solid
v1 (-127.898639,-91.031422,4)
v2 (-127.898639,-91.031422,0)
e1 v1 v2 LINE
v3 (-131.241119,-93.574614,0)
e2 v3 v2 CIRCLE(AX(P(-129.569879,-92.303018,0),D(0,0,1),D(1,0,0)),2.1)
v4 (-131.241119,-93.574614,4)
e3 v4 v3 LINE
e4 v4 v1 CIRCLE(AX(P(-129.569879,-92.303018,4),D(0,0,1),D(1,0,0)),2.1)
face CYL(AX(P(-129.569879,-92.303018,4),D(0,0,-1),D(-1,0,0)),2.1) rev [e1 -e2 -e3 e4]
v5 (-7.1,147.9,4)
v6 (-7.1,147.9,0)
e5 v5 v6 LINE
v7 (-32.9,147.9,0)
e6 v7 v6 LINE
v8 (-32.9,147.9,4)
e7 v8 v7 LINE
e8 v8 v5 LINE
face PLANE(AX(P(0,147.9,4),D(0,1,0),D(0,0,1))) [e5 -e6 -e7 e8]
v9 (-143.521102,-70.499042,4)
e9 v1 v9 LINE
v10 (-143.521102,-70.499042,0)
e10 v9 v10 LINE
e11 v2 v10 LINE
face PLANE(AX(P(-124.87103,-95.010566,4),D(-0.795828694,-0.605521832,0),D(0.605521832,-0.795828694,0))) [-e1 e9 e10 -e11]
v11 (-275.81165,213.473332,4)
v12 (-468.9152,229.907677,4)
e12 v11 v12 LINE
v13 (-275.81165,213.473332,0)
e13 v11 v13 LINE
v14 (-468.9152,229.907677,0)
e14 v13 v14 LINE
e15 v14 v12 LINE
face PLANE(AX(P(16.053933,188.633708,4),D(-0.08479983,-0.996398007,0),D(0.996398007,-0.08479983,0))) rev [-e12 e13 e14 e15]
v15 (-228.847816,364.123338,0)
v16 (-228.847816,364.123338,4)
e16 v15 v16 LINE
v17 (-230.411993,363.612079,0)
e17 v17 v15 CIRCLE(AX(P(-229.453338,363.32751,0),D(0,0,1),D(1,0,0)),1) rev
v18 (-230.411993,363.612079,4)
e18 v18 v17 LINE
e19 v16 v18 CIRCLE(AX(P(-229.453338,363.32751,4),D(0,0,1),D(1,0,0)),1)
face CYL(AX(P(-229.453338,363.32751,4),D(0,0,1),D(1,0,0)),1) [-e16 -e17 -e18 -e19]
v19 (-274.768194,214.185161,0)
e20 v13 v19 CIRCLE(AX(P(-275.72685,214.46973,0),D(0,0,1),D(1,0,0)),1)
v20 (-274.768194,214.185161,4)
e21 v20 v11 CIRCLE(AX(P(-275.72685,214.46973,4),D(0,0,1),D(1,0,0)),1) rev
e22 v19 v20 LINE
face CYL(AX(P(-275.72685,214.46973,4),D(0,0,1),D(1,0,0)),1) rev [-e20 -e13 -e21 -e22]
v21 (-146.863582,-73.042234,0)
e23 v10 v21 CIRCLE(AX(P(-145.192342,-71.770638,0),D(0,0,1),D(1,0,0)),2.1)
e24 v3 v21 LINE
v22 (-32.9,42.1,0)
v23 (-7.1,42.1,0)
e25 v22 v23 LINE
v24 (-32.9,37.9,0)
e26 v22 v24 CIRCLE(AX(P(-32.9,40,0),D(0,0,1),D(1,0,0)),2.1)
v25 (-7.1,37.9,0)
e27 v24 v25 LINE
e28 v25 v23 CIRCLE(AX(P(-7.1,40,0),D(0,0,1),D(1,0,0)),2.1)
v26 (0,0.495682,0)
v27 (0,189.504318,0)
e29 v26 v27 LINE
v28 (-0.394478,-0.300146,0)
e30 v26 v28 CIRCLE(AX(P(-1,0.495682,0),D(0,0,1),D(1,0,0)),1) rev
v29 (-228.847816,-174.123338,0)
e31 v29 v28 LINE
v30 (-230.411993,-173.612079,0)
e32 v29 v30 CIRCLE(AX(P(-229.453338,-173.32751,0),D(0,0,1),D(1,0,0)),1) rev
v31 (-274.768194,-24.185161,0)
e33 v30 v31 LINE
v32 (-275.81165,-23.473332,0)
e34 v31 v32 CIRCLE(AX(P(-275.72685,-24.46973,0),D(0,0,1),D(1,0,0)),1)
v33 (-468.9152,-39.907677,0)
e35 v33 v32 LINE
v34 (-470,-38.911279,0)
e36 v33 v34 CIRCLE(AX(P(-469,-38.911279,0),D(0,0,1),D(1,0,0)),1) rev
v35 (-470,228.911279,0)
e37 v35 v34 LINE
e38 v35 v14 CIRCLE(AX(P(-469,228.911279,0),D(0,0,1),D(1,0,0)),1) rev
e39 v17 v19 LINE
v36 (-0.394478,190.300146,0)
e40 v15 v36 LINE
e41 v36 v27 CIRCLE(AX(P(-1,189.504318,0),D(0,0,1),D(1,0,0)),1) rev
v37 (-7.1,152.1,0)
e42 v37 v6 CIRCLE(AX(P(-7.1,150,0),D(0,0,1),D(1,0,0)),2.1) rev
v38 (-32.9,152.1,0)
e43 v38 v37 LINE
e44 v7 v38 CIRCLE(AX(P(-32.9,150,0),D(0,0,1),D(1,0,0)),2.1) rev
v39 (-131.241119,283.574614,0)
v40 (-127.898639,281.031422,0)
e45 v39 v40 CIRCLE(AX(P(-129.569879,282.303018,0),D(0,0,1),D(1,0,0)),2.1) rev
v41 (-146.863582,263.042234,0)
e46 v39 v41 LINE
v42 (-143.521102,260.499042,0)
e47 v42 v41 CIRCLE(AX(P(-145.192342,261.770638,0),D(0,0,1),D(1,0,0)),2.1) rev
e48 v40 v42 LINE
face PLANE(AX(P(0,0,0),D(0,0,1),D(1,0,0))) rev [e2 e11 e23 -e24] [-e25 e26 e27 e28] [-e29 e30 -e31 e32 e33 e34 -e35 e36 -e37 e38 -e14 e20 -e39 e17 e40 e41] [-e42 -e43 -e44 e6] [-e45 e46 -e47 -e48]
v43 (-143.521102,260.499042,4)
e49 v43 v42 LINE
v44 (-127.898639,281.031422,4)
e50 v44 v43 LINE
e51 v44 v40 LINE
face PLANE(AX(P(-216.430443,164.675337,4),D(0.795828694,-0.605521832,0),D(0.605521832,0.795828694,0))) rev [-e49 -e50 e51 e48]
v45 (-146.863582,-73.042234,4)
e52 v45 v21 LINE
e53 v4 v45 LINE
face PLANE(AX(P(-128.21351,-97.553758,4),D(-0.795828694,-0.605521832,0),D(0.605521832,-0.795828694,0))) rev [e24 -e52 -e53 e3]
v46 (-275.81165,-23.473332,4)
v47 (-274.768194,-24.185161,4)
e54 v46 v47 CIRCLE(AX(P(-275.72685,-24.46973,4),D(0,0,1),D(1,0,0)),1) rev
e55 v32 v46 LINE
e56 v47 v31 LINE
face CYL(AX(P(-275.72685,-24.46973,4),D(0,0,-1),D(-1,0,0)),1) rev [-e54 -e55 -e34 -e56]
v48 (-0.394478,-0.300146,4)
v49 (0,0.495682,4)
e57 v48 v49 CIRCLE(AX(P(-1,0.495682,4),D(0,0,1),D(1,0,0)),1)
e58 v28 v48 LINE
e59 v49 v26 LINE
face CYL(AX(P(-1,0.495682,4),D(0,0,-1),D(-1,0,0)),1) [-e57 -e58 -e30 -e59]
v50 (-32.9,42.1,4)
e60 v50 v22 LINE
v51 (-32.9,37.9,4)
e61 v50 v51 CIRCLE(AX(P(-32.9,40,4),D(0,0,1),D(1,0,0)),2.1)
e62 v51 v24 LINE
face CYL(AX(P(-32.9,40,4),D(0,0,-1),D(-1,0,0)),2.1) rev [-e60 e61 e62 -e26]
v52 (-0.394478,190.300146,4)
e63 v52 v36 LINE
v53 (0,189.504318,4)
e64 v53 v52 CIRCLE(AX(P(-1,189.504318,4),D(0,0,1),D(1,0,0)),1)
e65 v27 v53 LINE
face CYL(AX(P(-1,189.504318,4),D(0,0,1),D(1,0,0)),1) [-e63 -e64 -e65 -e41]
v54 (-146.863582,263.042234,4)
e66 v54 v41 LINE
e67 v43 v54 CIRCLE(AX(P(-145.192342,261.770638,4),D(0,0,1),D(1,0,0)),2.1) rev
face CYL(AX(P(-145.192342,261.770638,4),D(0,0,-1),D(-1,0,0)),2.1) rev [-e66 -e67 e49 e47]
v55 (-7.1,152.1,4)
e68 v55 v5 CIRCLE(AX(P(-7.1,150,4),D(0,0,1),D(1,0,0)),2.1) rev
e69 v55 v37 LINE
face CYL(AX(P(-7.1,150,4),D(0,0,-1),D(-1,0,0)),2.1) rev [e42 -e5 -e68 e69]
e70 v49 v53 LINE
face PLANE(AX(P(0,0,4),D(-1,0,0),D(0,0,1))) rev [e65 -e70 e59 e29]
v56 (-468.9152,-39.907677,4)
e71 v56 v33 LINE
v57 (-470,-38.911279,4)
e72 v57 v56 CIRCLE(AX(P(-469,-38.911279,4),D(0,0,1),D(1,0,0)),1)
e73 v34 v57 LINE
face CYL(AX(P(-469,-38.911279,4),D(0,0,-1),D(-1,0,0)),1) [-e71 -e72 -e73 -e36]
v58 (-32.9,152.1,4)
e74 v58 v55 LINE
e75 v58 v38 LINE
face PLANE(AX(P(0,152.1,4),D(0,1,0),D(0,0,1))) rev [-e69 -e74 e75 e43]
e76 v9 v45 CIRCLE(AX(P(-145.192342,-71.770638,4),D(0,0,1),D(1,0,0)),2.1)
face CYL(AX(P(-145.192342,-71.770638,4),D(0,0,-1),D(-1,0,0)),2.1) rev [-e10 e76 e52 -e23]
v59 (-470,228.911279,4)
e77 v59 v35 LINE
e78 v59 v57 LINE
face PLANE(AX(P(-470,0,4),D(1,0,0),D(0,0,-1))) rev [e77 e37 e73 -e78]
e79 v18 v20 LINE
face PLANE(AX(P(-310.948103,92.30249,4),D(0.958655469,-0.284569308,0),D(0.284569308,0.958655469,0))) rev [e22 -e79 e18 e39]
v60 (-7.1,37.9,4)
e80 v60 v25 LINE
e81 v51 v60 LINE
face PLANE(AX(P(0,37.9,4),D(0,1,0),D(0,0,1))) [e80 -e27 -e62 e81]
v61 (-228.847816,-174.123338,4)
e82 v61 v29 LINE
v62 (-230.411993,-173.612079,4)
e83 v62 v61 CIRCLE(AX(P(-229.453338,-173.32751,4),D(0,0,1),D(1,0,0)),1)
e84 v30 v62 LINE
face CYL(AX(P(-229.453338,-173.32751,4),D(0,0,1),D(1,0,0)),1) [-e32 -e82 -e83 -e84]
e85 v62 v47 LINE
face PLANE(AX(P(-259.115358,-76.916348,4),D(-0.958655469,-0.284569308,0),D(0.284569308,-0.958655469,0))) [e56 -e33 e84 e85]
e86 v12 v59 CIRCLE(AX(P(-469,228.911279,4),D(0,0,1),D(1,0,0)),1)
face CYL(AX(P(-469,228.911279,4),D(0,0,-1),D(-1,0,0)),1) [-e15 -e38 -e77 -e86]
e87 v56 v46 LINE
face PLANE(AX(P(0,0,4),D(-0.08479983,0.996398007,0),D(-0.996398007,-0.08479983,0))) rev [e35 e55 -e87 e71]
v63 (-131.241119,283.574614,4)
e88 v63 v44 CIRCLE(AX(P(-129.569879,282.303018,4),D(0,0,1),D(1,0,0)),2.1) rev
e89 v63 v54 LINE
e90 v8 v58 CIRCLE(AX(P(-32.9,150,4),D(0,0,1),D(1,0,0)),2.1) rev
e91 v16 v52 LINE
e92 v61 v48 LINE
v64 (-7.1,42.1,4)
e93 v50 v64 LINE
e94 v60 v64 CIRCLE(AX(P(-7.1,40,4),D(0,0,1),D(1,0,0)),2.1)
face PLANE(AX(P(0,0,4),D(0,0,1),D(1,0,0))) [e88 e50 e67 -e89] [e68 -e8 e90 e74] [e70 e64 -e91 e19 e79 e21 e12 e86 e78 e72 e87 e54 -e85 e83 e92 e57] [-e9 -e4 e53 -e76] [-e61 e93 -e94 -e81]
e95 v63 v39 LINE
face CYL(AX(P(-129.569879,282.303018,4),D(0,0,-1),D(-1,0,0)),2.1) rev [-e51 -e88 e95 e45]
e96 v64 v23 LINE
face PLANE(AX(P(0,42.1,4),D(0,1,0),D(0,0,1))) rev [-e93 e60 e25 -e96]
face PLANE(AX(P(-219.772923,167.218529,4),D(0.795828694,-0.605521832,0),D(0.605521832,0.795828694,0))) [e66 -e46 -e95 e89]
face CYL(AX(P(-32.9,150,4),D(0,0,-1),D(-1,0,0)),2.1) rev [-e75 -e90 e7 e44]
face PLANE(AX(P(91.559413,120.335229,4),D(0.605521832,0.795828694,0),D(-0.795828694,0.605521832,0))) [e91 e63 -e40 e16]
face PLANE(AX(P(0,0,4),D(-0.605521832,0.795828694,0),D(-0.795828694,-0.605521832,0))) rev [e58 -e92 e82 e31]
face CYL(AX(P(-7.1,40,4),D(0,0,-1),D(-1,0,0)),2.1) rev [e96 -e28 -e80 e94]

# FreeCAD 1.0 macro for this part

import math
import FreeCAD as App
import Part
import Sketcher

V = App.Vector


def edges_at(feature, points):
    """Names of the edges that pass closest to the given points."""
    edges = feature.Shape.Edges
    near = lambda p: min(range(len(edges)), key=lambda i: edges[i].distToShape(Part.Vertex(*p))[0])
    return sorted({f"Edge{near(p) + 1}" for p in points})

doc = App.newDocument("Part")
body = doc.addObject("PartDesign::Body", "Body")

# Sketch on XY plane
sketch1 = body.newObject("Sketcher::SketchObject", "Sketch")
sketch1.AttachmentSupport = (doc.getObject("XY_Plane"), [""])
sketch1.MapMode = "FlatFace"
sketch1.addGeometry([
    Part.LineSegment(V(-470, -40, 0), V(-275, -23.4, 0)),  # 0
    Part.LineSegment(V(-275, -23.4, 0), V(-230, -175, 0)),  # 1
    Part.LineSegment(V(-230, -175, 0), V(0, 0, 0)),  # 2
    Part.LineSegment(V(0, 0, 0), V(0, 190, 0)),  # 3
    Part.LineSegment(V(0, 190, 0), V(-230, 365, 0)),  # 4
    Part.LineSegment(V(-230, 365, 0), V(-275, 213.4, 0)),  # 5
    Part.LineSegment(V(-275, 213.4, 0), V(-470, 230, 0)),  # 6
    Part.LineSegment(V(-470, 230, 0), V(-470, -40, 0)),  # 7
    Part.LineSegment(V(-7.1, 37.9, 0), V(-32.9, 37.9, 0)),  # 8
    Part.ArcOfCircle(Part.Circle(V(-32.9, 40, 0), V(0, 0, 1), 2.1), math.radians(90), math.radians(270)),  # 9
    Part.LineSegment(V(-32.9, 42.1, 0), V(-7.1, 42.1, 0)),  # 10
    Part.ArcOfCircle(Part.Circle(V(-7.1, 40, 0), V(0, 0, 1), 2.1), math.radians(-90), math.radians(90)),  # 11
    Part.ArcOfCircle(Part.Circle(V(-7.1, 150, 0), V(0, 0, 1), 2.1), math.radians(-90), math.radians(90)),  # 12
    Part.LineSegment(V(-7.1, 147.9, 0), V(-32.9, 147.9, 0)),  # 13
    Part.ArcOfCircle(Part.Circle(V(-32.9, 150, 0), V(0, 0, 1), 2.1), math.radians(90), math.radians(270)),  # 14
    Part.LineSegment(V(-32.9, 152.1, 0), V(-7.1, 152.1, 0)),  # 15
    Part.ArcOfCircle(Part.Circle(V(-129.6, -92.3, 0), V(0, 0, 1), 2.1), math.radians(-143), math.radians(37)),  # 16
    Part.LineSegment(V(-131.2, -93.6, 0), V(-146.9, -73, 0)),  # 17
    Part.ArcOfCircle(Part.Circle(V(-145.2, -71.8, 0), V(0, 0, 1), 2.1), math.radians(37), math.radians(217)),  # 18
    Part.LineSegment(V(-143.5, -70.5, 0), V(-127.9, -91, 0)),  # 19
    Part.LineSegment(V(-146.9, 263, 0), V(-131.2, 283.6, 0)),  # 20
    Part.ArcOfCircle(Part.Circle(V(-129.6, 282.3, 0), V(0, 0, 1), 2.1), math.radians(-37), math.radians(143)),  # 21
    Part.LineSegment(V(-127.9, 281, 0), V(-143.5, 260.5, 0)),  # 22
    Part.ArcOfCircle(Part.Circle(V(-145.2, 261.8, 0), V(0, 0, 1), 2.1), math.radians(143), math.radians(323)),  # 23
], False)
sketch1.addConstraint([
    Sketcher.Constraint("Coincident", 0, 2, 1, 1),
    Sketcher.Constraint("Coincident", 1, 2, 2, 1),
    Sketcher.Constraint("Coincident", 2, 2, 3, 1),
    Sketcher.Constraint("Coincident", 3, 2, 4, 1),
    Sketcher.Constraint("Coincident", 4, 2, 5, 1),
    Sketcher.Constraint("Coincident", 5, 2, 6, 1),
    Sketcher.Constraint("Coincident", 6, 2, 7, 1),
    Sketcher.Constraint("Coincident", 7, 2, 0, 1),
    Sketcher.Constraint("Tangent", 8, 2, 9, 2),
    Sketcher.Constraint("Tangent", 9, 1, 10, 1),
    Sketcher.Constraint("Tangent", 10, 2, 11, 2),
    Sketcher.Constraint("Tangent", 11, 1, 8, 1),
    Sketcher.Constraint("Tangent", 12, 1, 13, 1),
    Sketcher.Constraint("Tangent", 13, 2, 14, 2),
    Sketcher.Constraint("Tangent", 14, 1, 15, 1),
    Sketcher.Constraint("Tangent", 15, 2, 12, 2),
    Sketcher.Constraint("Tangent", 16, 1, 17, 1),
    Sketcher.Constraint("Tangent", 17, 2, 18, 2),
    Sketcher.Constraint("Tangent", 18, 1, 19, 1),
    Sketcher.Constraint("Tangent", 19, 2, 16, 2),
    Sketcher.Constraint("Tangent", 20, 2, 21, 2),
    Sketcher.Constraint("Tangent", 21, 1, 22, 1),
    Sketcher.Constraint("Tangent", 22, 2, 23, 2),
    Sketcher.Constraint("Tangent", 23, 1, 20, 1),
    Sketcher.Constraint("Vertical", 3),
    Sketcher.Constraint("Vertical", 7),
    Sketcher.Constraint("Horizontal", 8),
    Sketcher.Constraint("Horizontal", 10),
    Sketcher.Constraint("Horizontal", 13),
    Sketcher.Constraint("Horizontal", 15),
    Sketcher.Constraint("Coincident", 2, 2, -1, 1),
    Sketcher.Constraint("Equal", 11, 12),
    Sketcher.Constraint("Equal", 14, 16),
    Sketcher.Constraint("Equal", 16, 18),
    Sketcher.Constraint("Equal", 18, 21),
    Sketcher.Constraint("Equal", 21, 23),
    Sketcher.Constraint("Perpendicular", 2, 17),
    Sketcher.Constraint("Perpendicular", 4, 20),
    Sketcher.Constraint("Vertical", 11, 3, 12, 3),
    Sketcher.Constraint("Vertical", 9, 3, 14, 3),
    Sketcher.Constraint("Vertical", 16, 3, 21, 3),
    Sketcher.Constraint("Vertical", 18, 3, 23, 3),
    Sketcher.Constraint("Vertical", 1, 2, 4, 2),
    Sketcher.Constraint("Vertical", 0, 2, 5, 2),
    Sketcher.Constraint("Vertical", 16, 1, 20, 2),
    Sketcher.Constraint("Equal", 1, 5),
    Sketcher.Constraint("Equal", 0, 6),
    Sketcher.Constraint("Radius", 9, 2.1),
    Sketcher.Constraint("DistanceY", 3, 1, 3, 2, 190.0),
    Sketcher.Constraint("DistanceY", 7, 2, 7, 1, 270.0),
    Sketcher.Constraint("DistanceX", 8, 2, 8, 1, 25.8),
    Sketcher.Constraint("DistanceY", -1, 1, 9, 3, 40.0),
    Sketcher.Constraint("DistanceY", -1, 1, 12, 3, 150.0),
    Sketcher.Constraint("DistanceX", 0, 2, -1, 1, 275.0),
    Sketcher.Constraint("DistanceX", 1, 2, -1, 1, 230.0),
    Sketcher.Constraint("DistanceY", 1, 2, -1, 1, 175.0),
    Sketcher.Constraint("DistanceX", 6, 2, -1, 1, 470.0),
    Sketcher.Constraint("Distance", 17, 25.8),
    Sketcher.Constraint("DistanceX", 9, 3, -1, 1, 32.9),
    Sketcher.Constraint("DistanceX", 18, 1, -1, 1, 143.521102),
    Sketcher.Constraint("Distance", 1, 158.133709),
    Sketcher.Constraint("DistanceY", 16, 3, -1, 1, 92.303018),
    Sketcher.Constraint("DistanceY", -1, 1, 21, 3, 282.303018),
])
pad1 = body.newObject("PartDesign::Pad", "Pad")
pad1.Profile = sketch1
pad1.Length = 4
doc.recompute()

fillet = body.newObject("PartDesign::Fillet", "Fillet")
fillet.Base = (pad1, edges_at(pad1, [
    (-275, -23.404, 2),
    (-470, -40, 2),
    (-470, 230, 2),
    (-275, 213.404, 2),
    (-230, 365, 2),
    (0, 190, 2),
    (0, 0, 2),
    (-230, -175, 2),
]))
fillet.Radius = 1

doc.recompute()
